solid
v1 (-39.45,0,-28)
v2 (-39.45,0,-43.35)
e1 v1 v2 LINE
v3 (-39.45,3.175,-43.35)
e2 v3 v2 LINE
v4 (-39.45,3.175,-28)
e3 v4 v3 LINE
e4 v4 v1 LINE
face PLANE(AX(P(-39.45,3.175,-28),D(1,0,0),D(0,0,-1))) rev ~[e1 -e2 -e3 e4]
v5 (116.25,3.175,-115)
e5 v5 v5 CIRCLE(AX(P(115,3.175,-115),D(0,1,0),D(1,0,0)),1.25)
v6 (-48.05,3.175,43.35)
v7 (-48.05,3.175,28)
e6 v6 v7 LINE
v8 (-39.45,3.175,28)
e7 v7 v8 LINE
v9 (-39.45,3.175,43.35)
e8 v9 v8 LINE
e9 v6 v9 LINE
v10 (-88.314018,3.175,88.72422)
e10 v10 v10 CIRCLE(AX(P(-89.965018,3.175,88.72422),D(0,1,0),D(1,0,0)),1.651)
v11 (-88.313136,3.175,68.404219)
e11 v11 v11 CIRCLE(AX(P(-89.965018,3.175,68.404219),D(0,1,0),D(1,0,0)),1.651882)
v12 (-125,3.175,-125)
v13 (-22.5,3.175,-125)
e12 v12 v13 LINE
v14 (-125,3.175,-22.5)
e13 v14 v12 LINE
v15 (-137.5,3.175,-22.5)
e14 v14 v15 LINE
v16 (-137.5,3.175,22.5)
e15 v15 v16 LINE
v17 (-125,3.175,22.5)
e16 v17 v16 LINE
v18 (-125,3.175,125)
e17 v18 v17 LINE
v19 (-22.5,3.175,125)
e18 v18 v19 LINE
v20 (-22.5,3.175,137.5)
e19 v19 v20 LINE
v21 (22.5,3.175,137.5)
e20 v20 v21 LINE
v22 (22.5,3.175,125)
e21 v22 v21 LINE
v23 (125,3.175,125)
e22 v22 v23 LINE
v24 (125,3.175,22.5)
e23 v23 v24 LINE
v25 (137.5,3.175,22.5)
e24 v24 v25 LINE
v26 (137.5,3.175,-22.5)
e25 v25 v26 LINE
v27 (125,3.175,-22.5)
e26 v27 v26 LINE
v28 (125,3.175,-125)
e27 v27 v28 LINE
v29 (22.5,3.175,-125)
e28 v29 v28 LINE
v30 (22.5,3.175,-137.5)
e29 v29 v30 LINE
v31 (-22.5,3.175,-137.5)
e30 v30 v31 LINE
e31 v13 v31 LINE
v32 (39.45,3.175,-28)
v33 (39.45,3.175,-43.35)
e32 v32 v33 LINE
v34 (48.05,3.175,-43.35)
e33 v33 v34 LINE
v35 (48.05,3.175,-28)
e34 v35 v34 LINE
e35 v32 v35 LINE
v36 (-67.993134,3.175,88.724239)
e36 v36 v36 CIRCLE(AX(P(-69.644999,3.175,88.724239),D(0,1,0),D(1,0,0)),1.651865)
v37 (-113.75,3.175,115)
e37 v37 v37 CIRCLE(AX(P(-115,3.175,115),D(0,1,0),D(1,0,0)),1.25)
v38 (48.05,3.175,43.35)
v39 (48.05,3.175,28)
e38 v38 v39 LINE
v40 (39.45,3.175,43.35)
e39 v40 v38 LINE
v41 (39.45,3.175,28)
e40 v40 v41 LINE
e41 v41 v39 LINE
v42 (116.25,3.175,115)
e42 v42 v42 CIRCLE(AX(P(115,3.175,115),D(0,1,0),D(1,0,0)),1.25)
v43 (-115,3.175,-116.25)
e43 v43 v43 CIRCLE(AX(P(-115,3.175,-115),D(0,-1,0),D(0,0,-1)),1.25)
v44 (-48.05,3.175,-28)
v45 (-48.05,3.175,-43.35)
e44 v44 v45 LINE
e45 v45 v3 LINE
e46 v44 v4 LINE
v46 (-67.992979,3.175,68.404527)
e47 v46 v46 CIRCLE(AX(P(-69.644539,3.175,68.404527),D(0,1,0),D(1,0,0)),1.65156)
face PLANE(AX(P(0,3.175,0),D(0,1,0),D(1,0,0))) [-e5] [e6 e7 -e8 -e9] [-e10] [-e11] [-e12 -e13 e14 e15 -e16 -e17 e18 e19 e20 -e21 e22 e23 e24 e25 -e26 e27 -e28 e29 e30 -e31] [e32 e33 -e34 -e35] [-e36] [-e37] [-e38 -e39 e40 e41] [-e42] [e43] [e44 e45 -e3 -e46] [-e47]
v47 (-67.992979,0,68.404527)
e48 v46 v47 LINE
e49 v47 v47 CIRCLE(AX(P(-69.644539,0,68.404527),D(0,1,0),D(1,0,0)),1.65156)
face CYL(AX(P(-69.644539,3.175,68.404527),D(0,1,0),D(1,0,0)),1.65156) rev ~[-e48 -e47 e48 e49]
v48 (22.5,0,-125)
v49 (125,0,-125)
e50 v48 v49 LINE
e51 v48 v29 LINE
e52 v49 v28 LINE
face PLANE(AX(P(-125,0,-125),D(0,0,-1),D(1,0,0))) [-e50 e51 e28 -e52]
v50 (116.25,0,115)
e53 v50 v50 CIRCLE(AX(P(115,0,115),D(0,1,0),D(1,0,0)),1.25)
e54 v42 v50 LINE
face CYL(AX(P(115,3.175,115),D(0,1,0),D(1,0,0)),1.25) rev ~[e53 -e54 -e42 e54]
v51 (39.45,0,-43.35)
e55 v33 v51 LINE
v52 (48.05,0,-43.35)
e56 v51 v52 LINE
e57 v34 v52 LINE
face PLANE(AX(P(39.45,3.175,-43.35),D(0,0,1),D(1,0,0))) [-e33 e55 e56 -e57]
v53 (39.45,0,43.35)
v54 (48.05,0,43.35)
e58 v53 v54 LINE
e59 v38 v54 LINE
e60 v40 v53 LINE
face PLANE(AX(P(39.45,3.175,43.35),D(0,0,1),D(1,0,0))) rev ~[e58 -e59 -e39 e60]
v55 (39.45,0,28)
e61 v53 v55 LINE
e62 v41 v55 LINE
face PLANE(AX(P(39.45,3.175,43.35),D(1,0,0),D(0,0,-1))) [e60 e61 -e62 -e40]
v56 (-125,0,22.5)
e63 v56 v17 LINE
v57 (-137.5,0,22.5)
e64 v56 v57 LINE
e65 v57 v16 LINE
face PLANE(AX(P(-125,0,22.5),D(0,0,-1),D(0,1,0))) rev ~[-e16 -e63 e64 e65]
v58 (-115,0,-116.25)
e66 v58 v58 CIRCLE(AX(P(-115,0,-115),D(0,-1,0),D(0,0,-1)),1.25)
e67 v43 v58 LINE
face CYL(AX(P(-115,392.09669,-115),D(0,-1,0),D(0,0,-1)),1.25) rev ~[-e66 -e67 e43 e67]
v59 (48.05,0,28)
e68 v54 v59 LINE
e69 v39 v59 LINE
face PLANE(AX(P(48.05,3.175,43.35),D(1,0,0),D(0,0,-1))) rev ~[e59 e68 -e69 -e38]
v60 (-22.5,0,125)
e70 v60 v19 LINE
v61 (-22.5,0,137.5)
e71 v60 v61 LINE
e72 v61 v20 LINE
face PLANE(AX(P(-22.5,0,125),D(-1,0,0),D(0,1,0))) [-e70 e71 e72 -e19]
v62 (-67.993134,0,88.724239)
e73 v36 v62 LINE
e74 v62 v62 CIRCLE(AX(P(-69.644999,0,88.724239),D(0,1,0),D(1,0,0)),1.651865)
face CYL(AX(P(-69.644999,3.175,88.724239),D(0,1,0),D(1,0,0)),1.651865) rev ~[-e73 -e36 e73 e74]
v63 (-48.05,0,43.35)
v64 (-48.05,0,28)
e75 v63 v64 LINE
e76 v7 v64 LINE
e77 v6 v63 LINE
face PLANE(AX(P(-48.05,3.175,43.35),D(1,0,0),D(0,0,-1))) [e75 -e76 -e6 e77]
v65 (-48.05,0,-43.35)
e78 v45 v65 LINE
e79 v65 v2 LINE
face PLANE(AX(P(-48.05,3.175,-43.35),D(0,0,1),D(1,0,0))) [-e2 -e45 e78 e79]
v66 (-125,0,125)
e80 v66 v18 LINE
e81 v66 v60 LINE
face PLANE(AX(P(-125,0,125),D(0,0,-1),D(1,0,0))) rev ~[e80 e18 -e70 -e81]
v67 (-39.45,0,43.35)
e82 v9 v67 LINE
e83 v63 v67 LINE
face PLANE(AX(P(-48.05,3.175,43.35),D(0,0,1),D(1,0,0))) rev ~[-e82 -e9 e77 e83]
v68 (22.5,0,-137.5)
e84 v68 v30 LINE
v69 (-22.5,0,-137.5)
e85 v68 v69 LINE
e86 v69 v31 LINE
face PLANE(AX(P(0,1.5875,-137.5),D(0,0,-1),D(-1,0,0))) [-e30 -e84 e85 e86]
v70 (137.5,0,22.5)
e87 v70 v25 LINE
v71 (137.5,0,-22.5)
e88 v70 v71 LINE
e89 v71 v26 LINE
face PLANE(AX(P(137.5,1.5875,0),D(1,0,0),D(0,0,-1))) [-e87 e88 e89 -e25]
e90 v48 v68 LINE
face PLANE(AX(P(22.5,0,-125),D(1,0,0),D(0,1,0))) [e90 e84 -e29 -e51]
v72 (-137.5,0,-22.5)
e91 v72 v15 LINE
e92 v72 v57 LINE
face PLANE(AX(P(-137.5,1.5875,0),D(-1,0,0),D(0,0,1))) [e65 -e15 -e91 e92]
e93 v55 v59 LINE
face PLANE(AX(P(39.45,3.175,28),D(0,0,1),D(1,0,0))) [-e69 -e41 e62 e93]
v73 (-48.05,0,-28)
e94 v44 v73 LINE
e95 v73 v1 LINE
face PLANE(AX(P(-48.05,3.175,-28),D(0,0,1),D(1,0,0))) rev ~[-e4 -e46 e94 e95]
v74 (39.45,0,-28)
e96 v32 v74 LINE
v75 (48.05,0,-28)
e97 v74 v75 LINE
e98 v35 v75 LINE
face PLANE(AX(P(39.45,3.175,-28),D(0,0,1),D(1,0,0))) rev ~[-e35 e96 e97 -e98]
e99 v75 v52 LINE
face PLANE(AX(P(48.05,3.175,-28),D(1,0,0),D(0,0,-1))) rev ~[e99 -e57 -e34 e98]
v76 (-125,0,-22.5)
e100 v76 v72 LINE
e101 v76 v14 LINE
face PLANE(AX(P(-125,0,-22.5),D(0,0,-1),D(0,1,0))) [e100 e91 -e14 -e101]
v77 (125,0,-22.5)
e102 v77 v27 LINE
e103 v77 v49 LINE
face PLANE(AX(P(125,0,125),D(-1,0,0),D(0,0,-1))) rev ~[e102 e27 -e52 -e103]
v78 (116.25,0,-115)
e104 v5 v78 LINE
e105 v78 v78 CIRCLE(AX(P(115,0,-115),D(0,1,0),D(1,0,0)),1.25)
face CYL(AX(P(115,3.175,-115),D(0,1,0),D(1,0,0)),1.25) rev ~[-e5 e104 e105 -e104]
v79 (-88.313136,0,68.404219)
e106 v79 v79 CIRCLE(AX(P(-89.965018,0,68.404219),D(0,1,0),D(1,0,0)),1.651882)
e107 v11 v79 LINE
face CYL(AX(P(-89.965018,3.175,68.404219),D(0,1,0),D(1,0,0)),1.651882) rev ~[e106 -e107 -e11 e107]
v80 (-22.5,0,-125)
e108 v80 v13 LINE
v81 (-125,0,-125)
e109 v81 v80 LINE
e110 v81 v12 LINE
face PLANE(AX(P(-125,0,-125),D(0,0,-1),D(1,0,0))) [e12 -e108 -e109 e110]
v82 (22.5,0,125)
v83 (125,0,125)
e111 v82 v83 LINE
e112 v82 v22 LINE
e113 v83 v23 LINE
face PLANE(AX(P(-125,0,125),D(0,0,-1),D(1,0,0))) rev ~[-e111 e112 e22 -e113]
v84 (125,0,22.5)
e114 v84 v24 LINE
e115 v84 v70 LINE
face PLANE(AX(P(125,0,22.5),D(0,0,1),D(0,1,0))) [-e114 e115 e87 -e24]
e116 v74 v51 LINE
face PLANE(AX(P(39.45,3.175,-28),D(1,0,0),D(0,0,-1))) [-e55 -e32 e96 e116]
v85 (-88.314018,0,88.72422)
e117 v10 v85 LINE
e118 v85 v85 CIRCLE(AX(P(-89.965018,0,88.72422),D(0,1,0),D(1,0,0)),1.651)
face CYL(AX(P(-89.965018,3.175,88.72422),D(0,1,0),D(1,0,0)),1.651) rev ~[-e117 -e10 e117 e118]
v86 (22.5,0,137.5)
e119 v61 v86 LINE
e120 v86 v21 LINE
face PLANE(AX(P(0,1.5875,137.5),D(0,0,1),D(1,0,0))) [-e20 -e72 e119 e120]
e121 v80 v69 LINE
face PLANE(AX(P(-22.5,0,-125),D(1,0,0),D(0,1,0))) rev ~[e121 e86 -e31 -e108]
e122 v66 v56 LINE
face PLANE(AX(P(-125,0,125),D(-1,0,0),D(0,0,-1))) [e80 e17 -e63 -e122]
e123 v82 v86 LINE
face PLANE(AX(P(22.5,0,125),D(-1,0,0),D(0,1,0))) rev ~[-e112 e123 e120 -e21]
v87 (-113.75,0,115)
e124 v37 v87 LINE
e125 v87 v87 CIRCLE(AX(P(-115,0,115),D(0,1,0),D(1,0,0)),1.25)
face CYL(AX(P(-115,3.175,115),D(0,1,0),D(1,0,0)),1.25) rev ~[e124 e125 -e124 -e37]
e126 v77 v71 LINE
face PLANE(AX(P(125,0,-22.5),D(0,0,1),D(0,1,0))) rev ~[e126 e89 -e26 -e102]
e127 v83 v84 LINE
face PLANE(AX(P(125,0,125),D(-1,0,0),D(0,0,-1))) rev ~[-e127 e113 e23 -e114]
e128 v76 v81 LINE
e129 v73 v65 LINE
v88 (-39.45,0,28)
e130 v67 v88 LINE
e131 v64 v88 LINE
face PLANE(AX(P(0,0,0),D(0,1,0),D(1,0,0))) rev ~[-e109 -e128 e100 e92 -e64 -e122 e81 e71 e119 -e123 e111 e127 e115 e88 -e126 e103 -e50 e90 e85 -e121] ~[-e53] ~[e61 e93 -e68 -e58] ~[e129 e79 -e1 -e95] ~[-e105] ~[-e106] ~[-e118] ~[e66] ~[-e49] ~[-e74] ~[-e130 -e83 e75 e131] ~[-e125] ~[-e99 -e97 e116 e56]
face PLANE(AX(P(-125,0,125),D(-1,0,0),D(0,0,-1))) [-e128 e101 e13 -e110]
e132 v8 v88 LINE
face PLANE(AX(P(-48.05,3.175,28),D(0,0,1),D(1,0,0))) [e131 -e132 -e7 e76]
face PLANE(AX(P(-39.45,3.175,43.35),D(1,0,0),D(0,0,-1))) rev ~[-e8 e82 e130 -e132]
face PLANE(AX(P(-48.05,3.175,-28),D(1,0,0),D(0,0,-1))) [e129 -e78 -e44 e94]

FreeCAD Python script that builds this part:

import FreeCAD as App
import Part
import Sketcher

V = App.Vector
Q = App.Units.Quantity


def add_polygon(sketch, points):
    """Adds a closed chain of lines whose ends are joined by coincident constraints."""
    first, n = sketch.GeometryCount, len(points)
    for a, b in zip(points, points[1:] + points[:1]):
        sketch.addGeometry(Part.LineSegment(App.Vector(*a, 0), App.Vector(*b, 0)), False)
    for i in range(n):
        sketch.addConstraint(Sketcher.Constraint("Coincident", first + i, 2, first + (i + 1) % n, 1))

doc = App.newDocument("Part")
body = doc.addObject("PartDesign::Body", "Body")

# Sketch on XZ plane
sketch1 = doc.addObject("Sketcher::SketchObject", "Sketch")
body.addObject(sketch1)
sketch1.AttachmentSupport = (doc.XZ_Plane, [""])
sketch1.MapMode = "FlatFace"
add_polygon(sketch1, [(-125, -125), (-125, 125), (125, 125), (125, -125)])  # lines 0-3
sketch1.addConstraint(Sketcher.Constraint("Vertical", 0))
sketch1.addConstraint(Sketcher.Constraint("Horizontal", 1))
sketch1.addConstraint(Sketcher.Constraint("Vertical", 2))
sketch1.addConstraint(Sketcher.Constraint("Horizontal", 3))
sketch1.addConstraint(Sketcher.Constraint("Symmetric", 0, 2, 2, 2, -1, 1))
sketch1.addConstraint(Sketcher.Constraint("Equal", 3, 0))
sketch1.addConstraint(Sketcher.Constraint("DistanceX", 1, 1, 1, 2, Q("250 mm")))
pad1 = doc.addObject("PartDesign::Pad", "Pad")
body.addObject(pad1)
pad1.Profile = sketch1
pad1.Length = 3.175
pad1.Reversed = True

# Sketch on XZ plane
sketch2 = doc.addObject("Sketcher::SketchObject", "Sketch001")
body.addObject(sketch2)
sketch2.AttachmentSupport = (doc.XZ_Plane, [""])
sketch2.MapMode = "FlatFace"
sketch2.AttachmentOffset = App.Placement(V(0, 0, -3.175), App.Rotation())
add_polygon(sketch2, [(-48.05, -43.35), (-48.05, -28), (-39.45, -28), (-39.45, -43.35)])  # lines 0-3
add_polygon(sketch2, [(-48.05, 28), (-48.05, 43.35), (-39.45, 43.35), (-39.45, 28)])  # lines 4-7
add_polygon(sketch2, [(39.45, 28), (39.45, 43.35), (48.05, 43.35), (48.05, 28)])  # lines 8-11
add_polygon(sketch2, [(39.45, -43.35), (39.45, -28), (48.05, -28), (48.05, -43.35)])  # lines 12-15
sketch2.addConstraint(Sketcher.Constraint("Vertical", 0))
sketch2.addConstraint(Sketcher.Constraint("Horizontal", 1))
sketch2.addConstraint(Sketcher.Constraint("Vertical", 2))
sketch2.addConstraint(Sketcher.Constraint("Horizontal", 3))
sketch2.addConstraint(Sketcher.Constraint("Vertical", 4))
sketch2.addConstraint(Sketcher.Constraint("Horizontal", 5))
sketch2.addConstraint(Sketcher.Constraint("Vertical", 6))
sketch2.addConstraint(Sketcher.Constraint("Horizontal", 7))
sketch2.addConstraint(Sketcher.Constraint("Vertical", 8))
sketch2.addConstraint(Sketcher.Constraint("Horizontal", 9))
sketch2.addConstraint(Sketcher.Constraint("Vertical", 10))
sketch2.addConstraint(Sketcher.Constraint("Horizontal", 11))
sketch2.addConstraint(Sketcher.Constraint("Vertical", 12))
sketch2.addConstraint(Sketcher.Constraint("Horizontal", 13))
sketch2.addConstraint(Sketcher.Constraint("Vertical", 14))
sketch2.addConstraint(Sketcher.Constraint("Horizontal", 15))
sketch2.addConstraint(Sketcher.Constraint("Symmetric", 2, 2, 8, 2, -1, 1))
sketch2.addConstraint(Sketcher.Constraint("Symmetric", 0, 2, 10, 2, -1, 1))
sketch2.addConstraint(Sketcher.Constraint("Symmetric", 6, 2, 12, 2, -1, 1))
sketch2.addConstraint(Sketcher.Constraint("Symmetric", 4, 2, 14, 2, -1, 1))
sketch2.addConstraint(Sketcher.Constraint("Symmetric", 5, 2, 8, 2, -2))
sketch2.addConstraint(Sketcher.Constraint("Symmetric", 7, 2, 10, 2, -2))
sketch2.addConstraint(Sketcher.Constraint("DistanceX", 1, 1, 1, 2, Q("8.6 mm")))
sketch2.addConstraint(Sketcher.Constraint("DistanceY", 0, 2, -1, 1, Q("28 mm")))
sketch2.addConstraint(Sketcher.Constraint("DistanceY", 0, 1, 0, 2, Q("15.35 mm")))
sketch2.addConstraint(Sketcher.Constraint("DistanceX", 5, 2, 8, 2, Q("78.9 mm")))
pocket1 = doc.addObject("PartDesign::Pocket", "Pocket")
body.addObject(pocket1)
pocket1.Profile = sketch2
pocket1.Length = 10
pocket1.Reversed = True

# Sketch on XY plane
sketch3 = doc.addObject("Sketcher::SketchObject", "Sketch002")
body.addObject(sketch3)
sketch3.AttachmentSupport = (doc.XY_Plane, [""])
sketch3.MapMode = "FlatFace"
sketch3.AttachmentOffset = App.Placement(V(0, 0, -125), App.Rotation())
add_polygon(sketch3, [(22.5, 3.175), (22.5, 0), (-22.5, 0), (-22.5, 3.175)])  # lines 0-3
sketch3.addConstraint(Sketcher.Constraint("Vertical", 0))
sketch3.addConstraint(Sketcher.Constraint("Horizontal", 1))
sketch3.addConstraint(Sketcher.Constraint("Vertical", 2))
sketch3.addConstraint(Sketcher.Constraint("Horizontal", 3))
sketch3.addConstraint(Sketcher.Constraint("Symmetric", 0, 2, 1, 2, -1, 1))
sketch3.addConstraint(Sketcher.Constraint("DistanceX", 1, 2, 1, 1, Q("45 mm")))
sketch3.addConstraint(Sketcher.Constraint("DistanceY", 0, 2, 0, 1, Q("3.175 mm")))
pad2 = doc.addObject("PartDesign::Pad", "Pad001")
body.addObject(pad2)
pad2.Profile = sketch3
pad2.Length = 12.5
pad2.Reversed = True

# Sketch on YZ plane
sketch4 = doc.addObject("Sketcher::SketchObject", "Sketch003")
body.addObject(sketch4)
sketch4.AttachmentSupport = (doc.YZ_Plane, [""])
sketch4.MapMode = "FlatFace"
sketch4.AttachmentOffset = App.Placement(V(0, 0, -125), App.Rotation())
add_polygon(sketch4, [(3.175, -22.5), (0, -22.5), (0, 22.5), (3.175, 22.5)])  # lines 0-3
sketch4.addConstraint(Sketcher.Constraint("Horizontal", 0))
sketch4.addConstraint(Sketcher.Constraint("Vertical", 1))
sketch4.addConstraint(Sketcher.Constraint("Horizontal", 2))
sketch4.addConstraint(Sketcher.Constraint("Vertical", 3))
sketch4.addConstraint(Sketcher.Constraint("Symmetric", 0, 2, 1, 2, -1, 1))
sketch4.addConstraint(Sketcher.Constraint("DistanceY", 1, 1, 1, 2, Q("45 mm")))
sketch4.addConstraint(Sketcher.Constraint("DistanceX", 0, 2, 0, 1, Q("3.175 mm")))
pad3 = doc.addObject("PartDesign::Pad", "Pad002")
body.addObject(pad3)
pad3.Profile = sketch4
pad3.Length = 12.5
pad3.Reversed = True

# Sketch on XY plane
sketch5 = doc.addObject("Sketcher::SketchObject", "Sketch004")
body.addObject(sketch5)
sketch5.AttachmentSupport = (doc.XY_Plane, [""])
sketch5.MapMode = "FlatFace"
sketch5.AttachmentOffset = App.Placement(V(0, 0, 125), App.Rotation())
add_polygon(sketch5, [(-22.5, 3.175), (-22.5, 0), (22.5, 0), (22.5, 3.175)])  # lines 0-3
sketch5.addConstraint(Sketcher.Constraint("Vertical", 0))
sketch5.addConstraint(Sketcher.Constraint("Horizontal", 1))
sketch5.addConstraint(Sketcher.Constraint("Vertical", 2))
sketch5.addConstraint(Sketcher.Constraint("Horizontal", 3))
sketch5.addConstraint(Sketcher.Constraint("Symmetric", 0, 2, 1, 2, -1, 1))
sketch5.addConstraint(Sketcher.Constraint("DistanceX", 1, 1, 1, 2, Q("45 mm")))
sketch5.addConstraint(Sketcher.Constraint("DistanceY", 0, 2, 0, 1, Q("3.175 mm")))
pad4 = doc.addObject("PartDesign::Pad", "Pad003")
body.addObject(pad4)
pad4.Profile = sketch5
pad4.Length = 12.5

# Sketch on YZ plane
sketch6 = doc.addObject("Sketcher::SketchObject", "Sketch005")
body.addObject(sketch6)
sketch6.AttachmentSupport = (doc.YZ_Plane, [""])
sketch6.MapMode = "FlatFace"
sketch6.AttachmentOffset = App.Placement(V(0, 0, 125), App.Rotation())
add_polygon(sketch6, [(3.175, 22.5), (0, 22.5), (0, -22.5), (3.175, -22.5)])  # lines 0-3
sketch6.addConstraint(Sketcher.Constraint("Horizontal", 0))
sketch6.addConstraint(Sketcher.Constraint("Vertical", 1))
sketch6.addConstraint(Sketcher.Constraint("Horizontal", 2))
sketch6.addConstraint(Sketcher.Constraint("Vertical", 3))
sketch6.addConstraint(Sketcher.Constraint("Symmetric", 0, 2, 1, 2, -1, 1))
sketch6.addConstraint(Sketcher.Constraint("DistanceY", 1, 2, 1, 1, Q("45 mm")))
sketch6.addConstraint(Sketcher.Constraint("DistanceX", 0, 2, 0, 1, Q("3.175 mm")))
pad5 = doc.addObject("PartDesign::Pad", "Pad004")
body.addObject(pad5)
pad5.Profile = sketch6
pad5.Length = 12.5

# Sketch on XZ plane
sketch7 = doc.addObject("Sketcher::SketchObject", "Sketch006")
body.addObject(sketch7)
sketch7.AttachmentSupport = (doc.XZ_Plane, [""])
sketch7.MapMode = "FlatFace"
sketch7.AttachmentOffset = App.Placement(V(0, 0, -3.175), App.Rotation())
sketch7.addGeometry(Part.Circle(V(-115, -115, 0), V(0, 0, 1), 1.25), False)
sketch7.addConstraint(Sketcher.Constraint("Diameter", 0, Q("2.5 mm")))
sketch7.addConstraint(Sketcher.Constraint("DistanceX", 0, 3, -1, 1, Q("115 mm")))
sketch7.addConstraint(Sketcher.Constraint("DistanceY", 0, 3, -1, 1, Q("115 mm")))
doc.recompute()
hole = doc.addObject("PartDesign::Hole", "Hole")
body.addObject(hole)
hole.Profile = sketch7
hole.ThreadType = "None"
hole.Diameter = 2.5
hole.DepthType = "ThroughAll"
hole.Reversed = True

# Sketch on XZ plane
sketch8 = doc.addObject("Sketcher::SketchObject", "Sketch007")
body.addObject(sketch8)
sketch8.AttachmentSupport = (doc.XZ_Plane, [""])
sketch8.MapMode = "FlatFace"
sketch8.AttachmentOffset = App.Placement(V(0, 0, -3.175), App.Rotation())
sketch8.addGeometry(Part.Circle(V(115, -115, 0), V(0, 0, 1), 1.25), False)
sketch8.addGeometry(Part.Circle(V(115, 115, 0), V(0, 0, 1), 1.25), False)
sketch8.addGeometry(Part.Circle(V(-115, 115, 0), V(0, 0, 1), 1.25), False)
sketch8.addConstraint(Sketcher.Constraint("Equal", 0, 1))
sketch8.addConstraint(Sketcher.Constraint("Equal", 1, 2))
sketch8.addConstraint(Sketcher.Constraint("Symmetric", 0, 3, 2, 3, -1, 1))
sketch8.addConstraint(Sketcher.Constraint("Symmetric", 1, 3, 2, 3, -2))
sketch8.addConstraint(Sketcher.Constraint("Diameter", 0, Q("2.5 mm")))
sketch8.addConstraint(Sketcher.Constraint("DistanceX", -1, 1, 0, 3, Q("115 mm")))
sketch8.addConstraint(Sketcher.Constraint("DistanceY", 0, 3, -1, 1, Q("115 mm")))
pocket2 = doc.addObject("PartDesign::Pocket", "Pocket001")
body.addObject(pocket2)
pocket2.Profile = sketch8
pocket2.Length = 10
pocket2.Reversed = True

# Sketch on XZ plane
sketch9 = doc.addObject("Sketcher::SketchObject", "Sketch008")
body.addObject(sketch9)
sketch9.AttachmentSupport = (doc.XZ_Plane, [""])
sketch9.MapMode = "FlatFace"
sketch9.AttachmentOffset = App.Placement(V(0, 0, -3.175), App.Rotation())
sketch9.addGeometry(Part.Circle(V(-89.965018, 68.404219, 0), V(0, 0, 1), 1.651882), False)
sketch9.addGeometry(Part.Circle(V(-69.644539, 68.404527, 0), V(0, 0, 1), 1.65156), False)
sketch9.addGeometry(Part.Circle(V(-69.644999, 88.724239, 0), V(0, 0, 1), 1.651865), False)
sketch9.addGeometry(Part.Circle(V(-89.965018, 88.72422, 0), V(0, 0, 1), 1.651), False)
sketch9.addConstraint(Sketcher.Constraint("Vertical", 0, 3, 3, 3))
sketch9.addConstraint(Sketcher.Constraint("Diameter", 3, Q("3.302 mm")))
sketch9.addConstraint(Sketcher.Constraint("Diameter", 1, Q("3.30312 mm")))
sketch9.addConstraint(Sketcher.Constraint("Diameter", 2, Q("3.303729 mm")))
sketch9.addConstraint(Sketcher.Constraint("DistanceY", 0, 3, 3, 3, Q("20.320001 mm")))
sketch9.addConstraint(Sketcher.Constraint("Diameter", 0, Q("3.303764 mm")))
sketch9.addConstraint(Sketcher.Constraint("DistanceX", 2, 3, -1, 1, Q("69.644999 mm")))
sketch9.addConstraint(Sketcher.Constraint("DistanceX", 0, 3, -1, 1, Q("89.965018 mm")))
sketch9.addConstraint(Sketcher.Constraint("DistanceY", -1, 1, 0, 3, Q("68.404219 mm")))
sketch9.addConstraint(Sketcher.Constraint("DistanceX", 1, 3, -1, 1, Q("69.644539 mm")))
sketch9.addConstraint(Sketcher.Constraint("DistanceY", -1, 1, 2, 3, Q("88.724239 mm")))
sketch9.addConstraint(Sketcher.Constraint("DistanceY", 1, 3, 2, 3, Q("20.319712 mm")))
pocket3 = doc.addObject("PartDesign::Pocket", "Pocket002")
body.addObject(pocket3)
pocket3.Profile = sketch9
pocket3.Type = "ThroughAll"
pocket3.Reversed = True

doc.recompute()
